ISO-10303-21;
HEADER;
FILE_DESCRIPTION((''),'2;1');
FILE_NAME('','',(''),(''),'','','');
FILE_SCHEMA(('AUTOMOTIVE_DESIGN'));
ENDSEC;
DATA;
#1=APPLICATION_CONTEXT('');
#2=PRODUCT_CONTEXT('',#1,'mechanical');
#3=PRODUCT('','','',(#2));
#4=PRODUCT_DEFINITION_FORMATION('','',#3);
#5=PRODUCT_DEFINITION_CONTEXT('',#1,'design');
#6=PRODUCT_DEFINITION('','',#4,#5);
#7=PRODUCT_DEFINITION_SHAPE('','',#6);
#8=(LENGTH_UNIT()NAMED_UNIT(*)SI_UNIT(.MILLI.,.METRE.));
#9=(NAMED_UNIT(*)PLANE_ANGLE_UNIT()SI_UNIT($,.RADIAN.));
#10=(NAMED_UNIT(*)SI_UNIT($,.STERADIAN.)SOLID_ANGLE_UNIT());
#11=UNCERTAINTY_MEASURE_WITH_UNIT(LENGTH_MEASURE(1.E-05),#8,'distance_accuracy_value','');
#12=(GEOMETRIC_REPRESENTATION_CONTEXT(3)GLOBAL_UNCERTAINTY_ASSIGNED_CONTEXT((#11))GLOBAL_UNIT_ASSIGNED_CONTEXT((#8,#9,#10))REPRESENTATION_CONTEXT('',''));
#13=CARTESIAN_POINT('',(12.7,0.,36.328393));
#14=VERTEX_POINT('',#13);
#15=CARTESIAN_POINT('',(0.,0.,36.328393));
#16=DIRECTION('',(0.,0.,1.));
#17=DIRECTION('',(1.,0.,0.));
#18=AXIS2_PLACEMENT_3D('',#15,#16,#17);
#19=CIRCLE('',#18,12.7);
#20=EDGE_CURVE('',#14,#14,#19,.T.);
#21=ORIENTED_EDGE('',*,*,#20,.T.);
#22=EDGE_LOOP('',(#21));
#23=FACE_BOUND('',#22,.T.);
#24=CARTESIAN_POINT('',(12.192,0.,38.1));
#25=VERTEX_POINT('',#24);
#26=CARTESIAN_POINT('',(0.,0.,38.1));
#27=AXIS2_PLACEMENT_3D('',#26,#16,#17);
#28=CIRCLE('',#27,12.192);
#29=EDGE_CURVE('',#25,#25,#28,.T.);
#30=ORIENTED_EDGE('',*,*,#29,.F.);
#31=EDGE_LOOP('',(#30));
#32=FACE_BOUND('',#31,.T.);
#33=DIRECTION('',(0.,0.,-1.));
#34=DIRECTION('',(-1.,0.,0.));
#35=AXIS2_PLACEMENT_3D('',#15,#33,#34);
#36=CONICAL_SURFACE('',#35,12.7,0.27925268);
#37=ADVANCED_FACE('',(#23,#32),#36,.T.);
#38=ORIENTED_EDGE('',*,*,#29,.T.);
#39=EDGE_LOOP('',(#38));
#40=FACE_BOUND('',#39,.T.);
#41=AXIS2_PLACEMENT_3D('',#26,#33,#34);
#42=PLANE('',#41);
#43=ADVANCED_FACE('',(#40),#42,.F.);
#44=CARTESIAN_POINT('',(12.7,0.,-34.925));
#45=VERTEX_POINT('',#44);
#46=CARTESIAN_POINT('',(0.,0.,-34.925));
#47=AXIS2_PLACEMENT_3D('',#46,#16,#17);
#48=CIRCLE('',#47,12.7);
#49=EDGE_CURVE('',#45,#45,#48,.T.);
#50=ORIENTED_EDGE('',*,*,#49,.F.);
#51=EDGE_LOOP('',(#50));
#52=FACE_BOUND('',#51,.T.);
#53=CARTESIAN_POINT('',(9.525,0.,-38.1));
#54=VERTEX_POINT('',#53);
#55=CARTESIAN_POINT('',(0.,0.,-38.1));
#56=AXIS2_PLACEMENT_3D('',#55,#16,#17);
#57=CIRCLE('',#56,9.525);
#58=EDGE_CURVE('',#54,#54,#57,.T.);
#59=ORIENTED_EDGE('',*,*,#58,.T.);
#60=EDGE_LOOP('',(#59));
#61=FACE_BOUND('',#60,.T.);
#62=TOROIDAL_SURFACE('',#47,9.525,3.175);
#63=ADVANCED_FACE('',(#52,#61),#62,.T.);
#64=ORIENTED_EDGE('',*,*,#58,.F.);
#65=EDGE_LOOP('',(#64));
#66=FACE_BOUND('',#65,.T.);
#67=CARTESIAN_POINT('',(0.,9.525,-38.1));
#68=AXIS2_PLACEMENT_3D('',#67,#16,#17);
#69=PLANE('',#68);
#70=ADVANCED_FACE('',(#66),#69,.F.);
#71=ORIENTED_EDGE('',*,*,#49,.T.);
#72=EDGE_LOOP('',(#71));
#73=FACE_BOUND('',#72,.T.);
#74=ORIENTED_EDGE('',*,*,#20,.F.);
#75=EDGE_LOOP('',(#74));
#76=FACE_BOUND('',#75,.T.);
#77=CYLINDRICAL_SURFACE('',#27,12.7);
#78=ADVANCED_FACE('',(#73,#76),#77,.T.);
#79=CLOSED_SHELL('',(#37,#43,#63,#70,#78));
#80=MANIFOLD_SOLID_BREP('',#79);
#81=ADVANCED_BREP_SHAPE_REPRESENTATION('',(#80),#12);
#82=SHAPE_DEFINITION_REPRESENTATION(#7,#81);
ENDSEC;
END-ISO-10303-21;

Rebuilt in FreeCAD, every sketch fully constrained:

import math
import FreeCAD as App
import Part
import Sketcher
from FreeCAD import Vector
Q = App.Units.Quantity

doc = App.newDocument("Part")
params = doc.addObject("Spreadsheet::Sheet", "Params")
for row, (alias, value) in enumerate([
    ("sketch1_height", "3 in"),
    ("sketch1_radius", "0.125 in"),
    ("sketch1_width", "0.48 in"),
    ("revolution_angle", "360 deg"),
], start=1):
    params.set(f"A{row}", alias)
    params.set(f"B{row}", "=" + value)
    params.setAlias(f"B{row}", alias)

body = doc.addObject("PartDesign::Body", "Body")

sketch1 = body.newObject("Sketcher::SketchObject", "Sketch")
sketch1.AttachmentSupport = (doc.getObject("YZ_Plane"), [""])
sketch1.MapMode = "FlatFace"
sketch1.addGeometry(Part.LineSegment(Vector(0, -38.1, 0), Vector(9.5, -38.1, 0)), False)
sketch1.addGeometry(Part.ArcOfCircle(Part.Circle(Vector(9.5, -34.9, 0), Vector(0, 0, 1), 3.2), math.radians(-90), math.radians(0)), False)
sketch1.addGeometry(Part.LineSegment(Vector(12.7, -34.9, 0), Vector(12.7, 36.3, 0)), False)
sketch1.addGeometry(Part.LineSegment(Vector(12.7, 36.3, 0), Vector(12.2, 38.1, 0)), False)
sketch1.addGeometry(Part.LineSegment(Vector(12.2, 38.1, 0), Vector(0, 38.1, 0)), False)
sketch1.addGeometry(Part.LineSegment(Vector(0, 38.1, 0), Vector(0, -38.1, 0)), False)
sketch1.addConstraint(Sketcher.Constraint("Tangent", 0, 2, 1, 1))
sketch1.addConstraint(Sketcher.Constraint("Tangent", 1, 2, 2, 1))
sketch1.addConstraint(Sketcher.Constraint("Coincident", 2, 2, 3, 1))
sketch1.addConstraint(Sketcher.Constraint("Coincident", 3, 2, 4, 1))
sketch1.addConstraint(Sketcher.Constraint("Coincident", 4, 2, 5, 1))
sketch1.addConstraint(Sketcher.Constraint("Coincident", 5, 2, 0, 1))
sketch1.addConstraint(Sketcher.Constraint("Horizontal", 0))
sketch1.addConstraint(Sketcher.Constraint("Vertical", 2))
sketch1.addConstraint(Sketcher.Constraint("Horizontal", 4))
sketch1.addConstraint(Sketcher.Constraint("Vertical", 5))
sketch1.addConstraint(Sketcher.Constraint("Symmetric", 4, 2, 5, 2, -1, 1))
sketch1.addConstraint(Sketcher.Constraint("DistanceY", 5, 2, 5, 1, Q("3 in")))
sketch1.addConstraint(Sketcher.Constraint("Angle", 3, Q("106 deg")))
sketch1.addConstraint(Sketcher.Constraint("Radius", 1, Q("0.125 in")))
sketch1.addConstraint(Sketcher.Constraint("DistanceX", 4, 2, 4, 1, Q("0.48 in")))
sketch1.addConstraint(Sketcher.Constraint("DistanceX", -1, 1, 1, 2, Q("0.5 in")))
sketch1.setExpression("Constraints[11]", "Params.sketch1_height")
sketch1.setExpression("Constraints[13]", "Params.sketch1_radius")
sketch1.setExpression("Constraints[14]", "Params.sketch1_width")
revolution = body.newObject("PartDesign::Revolution", "Revolution")
revolution.Profile = sketch1
revolution.ReferenceAxis = (sketch1, ["V_Axis"])
revolution.setExpression("Angle", "Params.revolution_angle")

doc.recompute()
